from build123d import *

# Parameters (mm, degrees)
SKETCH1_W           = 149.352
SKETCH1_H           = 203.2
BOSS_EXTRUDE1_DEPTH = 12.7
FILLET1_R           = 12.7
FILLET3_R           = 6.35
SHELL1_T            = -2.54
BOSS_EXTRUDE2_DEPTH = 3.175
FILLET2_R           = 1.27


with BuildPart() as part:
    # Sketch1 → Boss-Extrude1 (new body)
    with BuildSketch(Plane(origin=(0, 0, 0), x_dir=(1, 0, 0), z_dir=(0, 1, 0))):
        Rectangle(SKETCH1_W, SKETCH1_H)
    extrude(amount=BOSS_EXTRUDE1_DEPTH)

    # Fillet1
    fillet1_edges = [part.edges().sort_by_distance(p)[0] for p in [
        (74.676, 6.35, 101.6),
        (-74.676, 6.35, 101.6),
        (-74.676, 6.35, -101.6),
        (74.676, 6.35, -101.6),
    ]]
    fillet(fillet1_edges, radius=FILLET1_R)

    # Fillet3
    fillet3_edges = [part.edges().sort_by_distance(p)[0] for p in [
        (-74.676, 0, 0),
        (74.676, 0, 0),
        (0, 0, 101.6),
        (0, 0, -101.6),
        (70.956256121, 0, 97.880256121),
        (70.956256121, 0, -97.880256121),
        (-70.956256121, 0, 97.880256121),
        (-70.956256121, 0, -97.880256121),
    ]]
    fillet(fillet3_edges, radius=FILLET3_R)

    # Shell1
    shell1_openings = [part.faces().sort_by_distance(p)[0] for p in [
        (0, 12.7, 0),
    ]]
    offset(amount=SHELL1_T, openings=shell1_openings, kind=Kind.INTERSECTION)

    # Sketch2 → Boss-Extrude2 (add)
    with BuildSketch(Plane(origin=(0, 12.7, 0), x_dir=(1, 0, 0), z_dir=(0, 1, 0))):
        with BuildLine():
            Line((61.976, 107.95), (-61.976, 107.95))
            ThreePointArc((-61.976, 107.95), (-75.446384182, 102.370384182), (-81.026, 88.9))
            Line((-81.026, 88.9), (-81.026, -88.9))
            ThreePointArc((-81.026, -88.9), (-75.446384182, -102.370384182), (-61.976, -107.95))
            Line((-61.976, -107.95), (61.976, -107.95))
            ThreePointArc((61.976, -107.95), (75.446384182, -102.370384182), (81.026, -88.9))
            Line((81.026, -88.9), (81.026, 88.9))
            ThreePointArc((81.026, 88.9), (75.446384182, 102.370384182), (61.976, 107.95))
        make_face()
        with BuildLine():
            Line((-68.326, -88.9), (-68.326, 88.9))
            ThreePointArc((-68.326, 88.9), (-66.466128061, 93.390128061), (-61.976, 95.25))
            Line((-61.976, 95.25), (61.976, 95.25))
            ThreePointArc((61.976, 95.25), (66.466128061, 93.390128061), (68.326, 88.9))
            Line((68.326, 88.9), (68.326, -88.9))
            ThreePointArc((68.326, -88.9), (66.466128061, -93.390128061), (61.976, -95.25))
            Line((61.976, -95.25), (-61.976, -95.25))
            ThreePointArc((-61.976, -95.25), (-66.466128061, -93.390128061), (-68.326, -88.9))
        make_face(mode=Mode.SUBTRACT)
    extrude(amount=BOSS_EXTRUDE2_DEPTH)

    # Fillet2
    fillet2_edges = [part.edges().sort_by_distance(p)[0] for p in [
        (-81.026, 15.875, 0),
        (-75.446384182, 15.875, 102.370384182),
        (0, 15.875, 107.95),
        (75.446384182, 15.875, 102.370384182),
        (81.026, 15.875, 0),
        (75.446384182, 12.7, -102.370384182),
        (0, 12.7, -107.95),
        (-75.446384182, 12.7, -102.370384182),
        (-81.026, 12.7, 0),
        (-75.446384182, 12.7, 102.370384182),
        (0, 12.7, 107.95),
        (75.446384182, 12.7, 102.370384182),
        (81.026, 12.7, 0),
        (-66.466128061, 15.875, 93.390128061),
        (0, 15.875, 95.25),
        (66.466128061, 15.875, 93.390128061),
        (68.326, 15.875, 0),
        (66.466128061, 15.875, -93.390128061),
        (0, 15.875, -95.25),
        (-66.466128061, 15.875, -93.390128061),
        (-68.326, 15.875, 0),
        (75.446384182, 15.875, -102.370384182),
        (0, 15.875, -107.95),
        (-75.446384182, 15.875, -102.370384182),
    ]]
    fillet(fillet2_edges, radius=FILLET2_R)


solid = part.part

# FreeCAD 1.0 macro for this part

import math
import FreeCAD as App
import Part
import Sketcher
from FreeCAD import Vector
Q = App.Units.Quantity


def edges_at(feature, points):
    """Names of the edges that pass closest to the given points."""
    edges = feature.Shape.Edges
    near = lambda p: min(range(len(edges)), key=lambda i: edges[i].distToShape(Part.Vertex(*p))[0])
    return sorted({f"Edge{near(p) + 1}" for p in points})


def faces_at(feature, points):
    """Names of the faces that lie closest to the given points."""
    faces = feature.Shape.Faces
    near = lambda p: min(range(len(faces)), key=lambda i: faces[i].distToShape(Part.Vertex(*p))[0])
    return sorted({f"Face{near(p) + 1}" for p in points})

doc = App.newDocument("Part")
body = doc.addObject("PartDesign::Body", "Body")

sketch1 = body.newObject("Sketcher::SketchObject", "Sketch")
sketch1.AttachmentSupport = (doc.getObject("XZ_Plane"), [""])
sketch1.MapMode = "FlatFace"
sketch1.addGeometry(Part.LineSegment(Vector(-74.676, -101.6, 0), Vector(-74.676, 101.6, 0)), False)
sketch1.addGeometry(Part.LineSegment(Vector(-74.676, 101.6, 0), Vector(74.676, 101.6, 0)), False)
sketch1.addGeometry(Part.LineSegment(Vector(74.676, 101.6, 0), Vector(74.676, -101.6, 0)), False)
sketch1.addGeometry(Part.LineSegment(Vector(74.676, -101.6, 0), Vector(-74.676, -101.6, 0)), False)
sketch1.addConstraint(Sketcher.Constraint("Coincident", 0, 2, 1, 1))
sketch1.addConstraint(Sketcher.Constraint("Coincident", 1, 2, 2, 1))
sketch1.addConstraint(Sketcher.Constraint("Coincident", 2, 2, 3, 1))
sketch1.addConstraint(Sketcher.Constraint("Coincident", 3, 2, 0, 1))
sketch1.addConstraint(Sketcher.Constraint("Vertical", 0))
sketch1.addConstraint(Sketcher.Constraint("Horizontal", 1))
sketch1.addConstraint(Sketcher.Constraint("Vertical", 2))
sketch1.addConstraint(Sketcher.Constraint("Horizontal", 3))
sketch1.addConstraint(Sketcher.Constraint("Symmetric", 0, 2, 2, 2, -1, 1))
sketch1.addConstraint(Sketcher.Constraint("DistanceY", 0, 1, 0, 2, Q("8 in")))
sketch1.addConstraint(Sketcher.Constraint("DistanceX", 1, 1, 1, 2, Q("5.88 in")))
pad1 = body.newObject("PartDesign::Pad", "Pad")
pad1.Profile = sketch1
pad1.Length = Q("0.5 in")
pad1.Reversed = True
doc.recompute()

fillet = body.newObject("PartDesign::Fillet", "Fillet")
fillet.Base = (pad1, edges_at(pad1, [
    (74.676, 6.35, 101.6),
    (-74.676, 6.35, 101.6),
    (-74.676, 6.35, -101.6),
    (74.676, 6.35, -101.6),
]))
fillet.Radius = Q("0.5 in")
doc.recompute()

fillet2 = body.newObject("PartDesign::Fillet", "Fillet001")
fillet2.Base = (fillet, edges_at(fillet, [
    (-74.676, 0, 0),
    (74.676, 0, 0),
    (0, 0, 101.6),
    (0, 0, -101.6),
    (70.956, 0, 97.88),
    (70.956, 0, -97.88),
    (-70.956, 0, 97.88),
    (-70.956, 0, -97.88),
]))
fillet2.Radius = Q("0.25 in")
doc.recompute()

thickness = body.newObject("PartDesign::Thickness", "Thickness")
thickness.Base = (fillet2, faces_at(fillet2, [(0, 12.7, 0)]))
thickness.Value = Q("0.1 in")
thickness.Reversed = True
thickness.Join = "Intersection"

sketch2 = body.newObject("Sketcher::SketchObject", "Sketch001")
sketch2.AttachmentSupport = (doc.getObject("XZ_Plane"), [""])
sketch2.MapMode = "FlatFace"
sketch2.AttachmentOffset = App.Placement(Vector(0, 0, -0.5 * 25.4), App.Rotation())
sketch2.addGeometry(Part.LineSegment(Vector(61.976, -107.95, 0), Vector(-61.976, -107.95, 0)), False)
sketch2.addGeometry(Part.ArcOfCircle(Part.Circle(Vector(-61.976, -88.9, 0), Vector(0, 0, 1), 19.05), math.radians(180), math.radians(270)), False)
sketch2.addGeometry(Part.LineSegment(Vector(-81.026, -88.9, 0), Vector(-81.026, 88.9, 0)), False)
sketch2.addGeometry(Part.ArcOfCircle(Part.Circle(Vector(-61.976, 88.9, 0), Vector(0, 0, 1), 19.05), math.radians(90), math.radians(180)), False)
sketch2.addGeometry(Part.LineSegment(Vector(-61.976, 107.95, 0), Vector(61.976, 107.95, 0)), False)
sketch2.addGeometry(Part.ArcOfCircle(Part.Circle(Vector(61.976, 88.9, 0), Vector(0, 0, 1), 19.05), math.radians(0), math.radians(90)), False)
sketch2.addGeometry(Part.LineSegment(Vector(81.026, 88.9, 0), Vector(81.026, -88.9, 0)), False)
sketch2.addGeometry(Part.ArcOfCircle(Part.Circle(Vector(61.976, -88.9, 0), Vector(0, 0, 1), 19.05), math.radians(-90), math.radians(0)), False)
sketch2.addGeometry(Part.ArcOfCircle(Part.Circle(Vector(-61.976, 88.9, 0), Vector(0, 0, 1), 6.35), math.radians(90), math.radians(180)), False)
sketch2.addGeometry(Part.LineSegment(Vector(-68.326, 88.9, 0), Vector(-68.326, -88.9, 0)), False)
sketch2.addGeometry(Part.ArcOfCircle(Part.Circle(Vector(-61.976, -88.9, 0), Vector(0, 0, 1), 6.35), math.radians(180), math.radians(270)), False)
sketch2.addGeometry(Part.LineSegment(Vector(-61.976, -95.25, 0), Vector(61.976, -95.25, 0)), False)
sketch2.addGeometry(Part.ArcOfCircle(Part.Circle(Vector(61.976, -88.9, 0), Vector(0, 0, 1), 6.35), math.radians(-90), math.radians(0)), False)
sketch2.addGeometry(Part.LineSegment(Vector(68.326, -88.9, 0), Vector(68.326, 88.9, 0)), False)
sketch2.addGeometry(Part.ArcOfCircle(Part.Circle(Vector(61.976, 88.9, 0), Vector(0, 0, 1), 6.35), math.radians(0), math.radians(90)), False)
sketch2.addGeometry(Part.LineSegment(Vector(61.976, 95.25, 0), Vector(-61.976, 95.25, 0)), False)
sketch2.addConstraint(Sketcher.Constraint("Tangent", 0, 2, 1, 2))
sketch2.addConstraint(Sketcher.Constraint("Tangent", 1, 1, 2, 1))
sketch2.addConstraint(Sketcher.Constraint("Tangent", 2, 2, 3, 2))
sketch2.addConstraint(Sketcher.Constraint("Tangent", 3, 1, 4, 1))
sketch2.addConstraint(Sketcher.Constraint("Tangent", 4, 2, 5, 2))
sketch2.addConstraint(Sketcher.Constraint("Tangent", 5, 1, 6, 1))
sketch2.addConstraint(Sketcher.Constraint("Tangent", 6, 2, 7, 2))
sketch2.addConstraint(Sketcher.Constraint("Tangent", 7, 1, 0, 1))
sketch2.addConstraint(Sketcher.Constraint("Tangent", 8, 2, 9, 1))
sketch2.addConstraint(Sketcher.Constraint("Tangent", 9, 2, 10, 1))
sketch2.addConstraint(Sketcher.Constraint("Tangent", 10, 2, 11, 1))
sketch2.addConstraint(Sketcher.Constraint("Tangent", 11, 2, 12, 1))
sketch2.addConstraint(Sketcher.Constraint("Tangent", 12, 2, 13, 1))
sketch2.addConstraint(Sketcher.Constraint("Tangent", 13, 2, 14, 1))
sketch2.addConstraint(Sketcher.Constraint("Tangent", 14, 2, 15, 1))
sketch2.addConstraint(Sketcher.Constraint("Tangent", 15, 2, 8, 1))
sketch2.addConstraint(Sketcher.Constraint("Horizontal", 0))
sketch2.addConstraint(Sketcher.Constraint("Vertical", 2))
sketch2.addConstraint(Sketcher.Constraint("Horizontal", 4))
sketch2.addConstraint(Sketcher.Constraint("Vertical", 6))
sketch2.addConstraint(Sketcher.Constraint("Vertical", 9))
sketch2.addConstraint(Sketcher.Constraint("Horizontal", 11))
sketch2.addConstraint(Sketcher.Constraint("Vertical", 13))
sketch2.addConstraint(Sketcher.Constraint("Horizontal", 15))
sketch2.addConstraint(Sketcher.Constraint("Coincident", 8, 3, 3, 3))
sketch2.addConstraint(Sketcher.Constraint("Coincident", 10, 3, 1, 3))
sketch2.addConstraint(Sketcher.Constraint("Coincident", 12, 3, 7, 3))
sketch2.addConstraint(Sketcher.Constraint("Equal", 1, 3))
sketch2.addConstraint(Sketcher.Constraint("Equal", 3, 5))
sketch2.addConstraint(Sketcher.Constraint("Equal", 5, 7))
sketch2.addConstraint(Sketcher.Constraint("Equal", 12, 14))
sketch2.addConstraint(Sketcher.Constraint("Symmetric", 1, 3, 5, 3, -1, 1))
sketch2.addConstraint(Sketcher.Constraint("DistanceY", 2, 1, 2, 2, Q("7 in")))
sketch2.addConstraint(Sketcher.Constraint("Radius", 1, Q("0.75 in")))
sketch2.addConstraint(Sketcher.Constraint("Radius", 8, Q("0.25 in")))
sketch2.addConstraint(Sketcher.Constraint("DistanceX", 0, 2, 0, 1, Q("4.88 in")))
pad2 = body.newObject("PartDesign::Pad", "Pad001")
pad2.Profile = sketch2
pad2.Length = Q("0.125 in")
pad2.Reversed = True
doc.recompute()

fillet3 = body.newObject("PartDesign::Fillet", "Fillet002")
fillet3.Base = (pad2, edges_at(pad2, [
    (-81.026, 15.875, 0),
    (-75.446, 15.875, 102.37),
    (0, 15.875, 107.95),
    (75.446, 15.875, 102.37),
    (81.026, 15.875, 0),
    (75.446, 12.7, -102.37),
    (0, 12.7, -107.95),
    (-75.446, 12.7, -102.37),
    (-81.026, 12.7, 0),
    (-75.446, 12.7, 102.37),
    (0, 12.7, 107.95),
    (75.446, 12.7, 102.37),
    (81.026, 12.7, 0),
    (-66.466, 15.875, 93.39),
    (0, 15.875, 95.25),
    (66.466, 15.875, 93.39),
    (68.326, 15.875, 0),
    (66.466, 15.875, -93.39),
    (0, 15.875, -95.25),
    (-66.466, 15.875, -93.39),
    (-68.326, 15.875, 0),
    (75.446, 15.875, -102.37),
    (0, 15.875, -107.95),
    (-75.446, 15.875, -102.37),
]))
fillet3.Radius = Q("0.05 in")

doc.recompute()
